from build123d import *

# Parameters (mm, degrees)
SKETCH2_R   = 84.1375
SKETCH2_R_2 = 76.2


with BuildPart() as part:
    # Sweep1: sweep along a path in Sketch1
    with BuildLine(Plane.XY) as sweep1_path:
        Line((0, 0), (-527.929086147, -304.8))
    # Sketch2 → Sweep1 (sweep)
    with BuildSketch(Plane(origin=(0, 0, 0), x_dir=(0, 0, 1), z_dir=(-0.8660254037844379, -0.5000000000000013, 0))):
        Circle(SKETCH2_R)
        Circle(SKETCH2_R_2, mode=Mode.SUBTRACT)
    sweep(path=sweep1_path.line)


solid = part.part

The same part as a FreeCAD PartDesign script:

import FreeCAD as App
import Part
import Sketcher
from FreeCAD import Vector
Q = App.Units.Quantity

doc = App.newDocument("Part")
body = doc.addObject("PartDesign::Body", "Body")

# Sketch on an angled plane
sketch1 = doc.addObject("Sketcher::SketchObject", "Sketch")
body.addObject(sketch1)
sketch1.Placement = App.Placement(Vector(0, 0, 0), App.Rotation(Vector(0, 0, 1), Vector(-0.5, 0.866025404, 0), Vector(-0.866025404, -0.5, 0), "ZXY"))
sketch1.addGeometry(Part.Circle(Vector(0, 0, 0), Vector(0, 0, 1), 84.1375), False)
sketch1.addGeometry(Part.Circle(Vector(0, 0, 0), Vector(0, 0, 1), 76.2), False)
sketch1.addConstraint(Sketcher.Constraint("Coincident", 0, 3, -1, 1))
sketch1.addConstraint(Sketcher.Constraint("Coincident", 1, 3, -1, 1))
sketch1.addConstraint(Sketcher.Constraint("Diameter", 1, Q("6 in")))
sketch1.addConstraint(Sketcher.Constraint("Diameter", 0, Q("6.625 in")))

# Sketch on an angled plane
sketch2 = doc.addObject("Sketcher::SketchObject", "Sketch001")
body.addObject(sketch2)
sketch2.Placement = App.Placement(Vector(0, 0, 0), App.Rotation(Vector(-0.866025404, -0.5, 0), Vector(0, 0, 1), Vector(-0.5, 0.866025404, 0), "ZXY"))
sketch2.addGeometry(Part.LineSegment(Vector(0, 0, 0), Vector(609.6, 0, 0)), False)
sketch2.addConstraint(Sketcher.Constraint("Horizontal", 0))
sketch2.addConstraint(Sketcher.Constraint("Coincident", 0, 1, -1, 1))
sketch2.addConstraint(Sketcher.Constraint("DistanceX", 0, 1, 0, 2, Q("24 in")))
doc.recompute()

additivepipe = doc.addObject("PartDesign::AdditivePipe", "AdditivePipe")
body.addObject(additivepipe)
additivepipe.Profile = sketch1
additivepipe.Spine = (sketch2, ["Edge1"])

doc.recompute()
